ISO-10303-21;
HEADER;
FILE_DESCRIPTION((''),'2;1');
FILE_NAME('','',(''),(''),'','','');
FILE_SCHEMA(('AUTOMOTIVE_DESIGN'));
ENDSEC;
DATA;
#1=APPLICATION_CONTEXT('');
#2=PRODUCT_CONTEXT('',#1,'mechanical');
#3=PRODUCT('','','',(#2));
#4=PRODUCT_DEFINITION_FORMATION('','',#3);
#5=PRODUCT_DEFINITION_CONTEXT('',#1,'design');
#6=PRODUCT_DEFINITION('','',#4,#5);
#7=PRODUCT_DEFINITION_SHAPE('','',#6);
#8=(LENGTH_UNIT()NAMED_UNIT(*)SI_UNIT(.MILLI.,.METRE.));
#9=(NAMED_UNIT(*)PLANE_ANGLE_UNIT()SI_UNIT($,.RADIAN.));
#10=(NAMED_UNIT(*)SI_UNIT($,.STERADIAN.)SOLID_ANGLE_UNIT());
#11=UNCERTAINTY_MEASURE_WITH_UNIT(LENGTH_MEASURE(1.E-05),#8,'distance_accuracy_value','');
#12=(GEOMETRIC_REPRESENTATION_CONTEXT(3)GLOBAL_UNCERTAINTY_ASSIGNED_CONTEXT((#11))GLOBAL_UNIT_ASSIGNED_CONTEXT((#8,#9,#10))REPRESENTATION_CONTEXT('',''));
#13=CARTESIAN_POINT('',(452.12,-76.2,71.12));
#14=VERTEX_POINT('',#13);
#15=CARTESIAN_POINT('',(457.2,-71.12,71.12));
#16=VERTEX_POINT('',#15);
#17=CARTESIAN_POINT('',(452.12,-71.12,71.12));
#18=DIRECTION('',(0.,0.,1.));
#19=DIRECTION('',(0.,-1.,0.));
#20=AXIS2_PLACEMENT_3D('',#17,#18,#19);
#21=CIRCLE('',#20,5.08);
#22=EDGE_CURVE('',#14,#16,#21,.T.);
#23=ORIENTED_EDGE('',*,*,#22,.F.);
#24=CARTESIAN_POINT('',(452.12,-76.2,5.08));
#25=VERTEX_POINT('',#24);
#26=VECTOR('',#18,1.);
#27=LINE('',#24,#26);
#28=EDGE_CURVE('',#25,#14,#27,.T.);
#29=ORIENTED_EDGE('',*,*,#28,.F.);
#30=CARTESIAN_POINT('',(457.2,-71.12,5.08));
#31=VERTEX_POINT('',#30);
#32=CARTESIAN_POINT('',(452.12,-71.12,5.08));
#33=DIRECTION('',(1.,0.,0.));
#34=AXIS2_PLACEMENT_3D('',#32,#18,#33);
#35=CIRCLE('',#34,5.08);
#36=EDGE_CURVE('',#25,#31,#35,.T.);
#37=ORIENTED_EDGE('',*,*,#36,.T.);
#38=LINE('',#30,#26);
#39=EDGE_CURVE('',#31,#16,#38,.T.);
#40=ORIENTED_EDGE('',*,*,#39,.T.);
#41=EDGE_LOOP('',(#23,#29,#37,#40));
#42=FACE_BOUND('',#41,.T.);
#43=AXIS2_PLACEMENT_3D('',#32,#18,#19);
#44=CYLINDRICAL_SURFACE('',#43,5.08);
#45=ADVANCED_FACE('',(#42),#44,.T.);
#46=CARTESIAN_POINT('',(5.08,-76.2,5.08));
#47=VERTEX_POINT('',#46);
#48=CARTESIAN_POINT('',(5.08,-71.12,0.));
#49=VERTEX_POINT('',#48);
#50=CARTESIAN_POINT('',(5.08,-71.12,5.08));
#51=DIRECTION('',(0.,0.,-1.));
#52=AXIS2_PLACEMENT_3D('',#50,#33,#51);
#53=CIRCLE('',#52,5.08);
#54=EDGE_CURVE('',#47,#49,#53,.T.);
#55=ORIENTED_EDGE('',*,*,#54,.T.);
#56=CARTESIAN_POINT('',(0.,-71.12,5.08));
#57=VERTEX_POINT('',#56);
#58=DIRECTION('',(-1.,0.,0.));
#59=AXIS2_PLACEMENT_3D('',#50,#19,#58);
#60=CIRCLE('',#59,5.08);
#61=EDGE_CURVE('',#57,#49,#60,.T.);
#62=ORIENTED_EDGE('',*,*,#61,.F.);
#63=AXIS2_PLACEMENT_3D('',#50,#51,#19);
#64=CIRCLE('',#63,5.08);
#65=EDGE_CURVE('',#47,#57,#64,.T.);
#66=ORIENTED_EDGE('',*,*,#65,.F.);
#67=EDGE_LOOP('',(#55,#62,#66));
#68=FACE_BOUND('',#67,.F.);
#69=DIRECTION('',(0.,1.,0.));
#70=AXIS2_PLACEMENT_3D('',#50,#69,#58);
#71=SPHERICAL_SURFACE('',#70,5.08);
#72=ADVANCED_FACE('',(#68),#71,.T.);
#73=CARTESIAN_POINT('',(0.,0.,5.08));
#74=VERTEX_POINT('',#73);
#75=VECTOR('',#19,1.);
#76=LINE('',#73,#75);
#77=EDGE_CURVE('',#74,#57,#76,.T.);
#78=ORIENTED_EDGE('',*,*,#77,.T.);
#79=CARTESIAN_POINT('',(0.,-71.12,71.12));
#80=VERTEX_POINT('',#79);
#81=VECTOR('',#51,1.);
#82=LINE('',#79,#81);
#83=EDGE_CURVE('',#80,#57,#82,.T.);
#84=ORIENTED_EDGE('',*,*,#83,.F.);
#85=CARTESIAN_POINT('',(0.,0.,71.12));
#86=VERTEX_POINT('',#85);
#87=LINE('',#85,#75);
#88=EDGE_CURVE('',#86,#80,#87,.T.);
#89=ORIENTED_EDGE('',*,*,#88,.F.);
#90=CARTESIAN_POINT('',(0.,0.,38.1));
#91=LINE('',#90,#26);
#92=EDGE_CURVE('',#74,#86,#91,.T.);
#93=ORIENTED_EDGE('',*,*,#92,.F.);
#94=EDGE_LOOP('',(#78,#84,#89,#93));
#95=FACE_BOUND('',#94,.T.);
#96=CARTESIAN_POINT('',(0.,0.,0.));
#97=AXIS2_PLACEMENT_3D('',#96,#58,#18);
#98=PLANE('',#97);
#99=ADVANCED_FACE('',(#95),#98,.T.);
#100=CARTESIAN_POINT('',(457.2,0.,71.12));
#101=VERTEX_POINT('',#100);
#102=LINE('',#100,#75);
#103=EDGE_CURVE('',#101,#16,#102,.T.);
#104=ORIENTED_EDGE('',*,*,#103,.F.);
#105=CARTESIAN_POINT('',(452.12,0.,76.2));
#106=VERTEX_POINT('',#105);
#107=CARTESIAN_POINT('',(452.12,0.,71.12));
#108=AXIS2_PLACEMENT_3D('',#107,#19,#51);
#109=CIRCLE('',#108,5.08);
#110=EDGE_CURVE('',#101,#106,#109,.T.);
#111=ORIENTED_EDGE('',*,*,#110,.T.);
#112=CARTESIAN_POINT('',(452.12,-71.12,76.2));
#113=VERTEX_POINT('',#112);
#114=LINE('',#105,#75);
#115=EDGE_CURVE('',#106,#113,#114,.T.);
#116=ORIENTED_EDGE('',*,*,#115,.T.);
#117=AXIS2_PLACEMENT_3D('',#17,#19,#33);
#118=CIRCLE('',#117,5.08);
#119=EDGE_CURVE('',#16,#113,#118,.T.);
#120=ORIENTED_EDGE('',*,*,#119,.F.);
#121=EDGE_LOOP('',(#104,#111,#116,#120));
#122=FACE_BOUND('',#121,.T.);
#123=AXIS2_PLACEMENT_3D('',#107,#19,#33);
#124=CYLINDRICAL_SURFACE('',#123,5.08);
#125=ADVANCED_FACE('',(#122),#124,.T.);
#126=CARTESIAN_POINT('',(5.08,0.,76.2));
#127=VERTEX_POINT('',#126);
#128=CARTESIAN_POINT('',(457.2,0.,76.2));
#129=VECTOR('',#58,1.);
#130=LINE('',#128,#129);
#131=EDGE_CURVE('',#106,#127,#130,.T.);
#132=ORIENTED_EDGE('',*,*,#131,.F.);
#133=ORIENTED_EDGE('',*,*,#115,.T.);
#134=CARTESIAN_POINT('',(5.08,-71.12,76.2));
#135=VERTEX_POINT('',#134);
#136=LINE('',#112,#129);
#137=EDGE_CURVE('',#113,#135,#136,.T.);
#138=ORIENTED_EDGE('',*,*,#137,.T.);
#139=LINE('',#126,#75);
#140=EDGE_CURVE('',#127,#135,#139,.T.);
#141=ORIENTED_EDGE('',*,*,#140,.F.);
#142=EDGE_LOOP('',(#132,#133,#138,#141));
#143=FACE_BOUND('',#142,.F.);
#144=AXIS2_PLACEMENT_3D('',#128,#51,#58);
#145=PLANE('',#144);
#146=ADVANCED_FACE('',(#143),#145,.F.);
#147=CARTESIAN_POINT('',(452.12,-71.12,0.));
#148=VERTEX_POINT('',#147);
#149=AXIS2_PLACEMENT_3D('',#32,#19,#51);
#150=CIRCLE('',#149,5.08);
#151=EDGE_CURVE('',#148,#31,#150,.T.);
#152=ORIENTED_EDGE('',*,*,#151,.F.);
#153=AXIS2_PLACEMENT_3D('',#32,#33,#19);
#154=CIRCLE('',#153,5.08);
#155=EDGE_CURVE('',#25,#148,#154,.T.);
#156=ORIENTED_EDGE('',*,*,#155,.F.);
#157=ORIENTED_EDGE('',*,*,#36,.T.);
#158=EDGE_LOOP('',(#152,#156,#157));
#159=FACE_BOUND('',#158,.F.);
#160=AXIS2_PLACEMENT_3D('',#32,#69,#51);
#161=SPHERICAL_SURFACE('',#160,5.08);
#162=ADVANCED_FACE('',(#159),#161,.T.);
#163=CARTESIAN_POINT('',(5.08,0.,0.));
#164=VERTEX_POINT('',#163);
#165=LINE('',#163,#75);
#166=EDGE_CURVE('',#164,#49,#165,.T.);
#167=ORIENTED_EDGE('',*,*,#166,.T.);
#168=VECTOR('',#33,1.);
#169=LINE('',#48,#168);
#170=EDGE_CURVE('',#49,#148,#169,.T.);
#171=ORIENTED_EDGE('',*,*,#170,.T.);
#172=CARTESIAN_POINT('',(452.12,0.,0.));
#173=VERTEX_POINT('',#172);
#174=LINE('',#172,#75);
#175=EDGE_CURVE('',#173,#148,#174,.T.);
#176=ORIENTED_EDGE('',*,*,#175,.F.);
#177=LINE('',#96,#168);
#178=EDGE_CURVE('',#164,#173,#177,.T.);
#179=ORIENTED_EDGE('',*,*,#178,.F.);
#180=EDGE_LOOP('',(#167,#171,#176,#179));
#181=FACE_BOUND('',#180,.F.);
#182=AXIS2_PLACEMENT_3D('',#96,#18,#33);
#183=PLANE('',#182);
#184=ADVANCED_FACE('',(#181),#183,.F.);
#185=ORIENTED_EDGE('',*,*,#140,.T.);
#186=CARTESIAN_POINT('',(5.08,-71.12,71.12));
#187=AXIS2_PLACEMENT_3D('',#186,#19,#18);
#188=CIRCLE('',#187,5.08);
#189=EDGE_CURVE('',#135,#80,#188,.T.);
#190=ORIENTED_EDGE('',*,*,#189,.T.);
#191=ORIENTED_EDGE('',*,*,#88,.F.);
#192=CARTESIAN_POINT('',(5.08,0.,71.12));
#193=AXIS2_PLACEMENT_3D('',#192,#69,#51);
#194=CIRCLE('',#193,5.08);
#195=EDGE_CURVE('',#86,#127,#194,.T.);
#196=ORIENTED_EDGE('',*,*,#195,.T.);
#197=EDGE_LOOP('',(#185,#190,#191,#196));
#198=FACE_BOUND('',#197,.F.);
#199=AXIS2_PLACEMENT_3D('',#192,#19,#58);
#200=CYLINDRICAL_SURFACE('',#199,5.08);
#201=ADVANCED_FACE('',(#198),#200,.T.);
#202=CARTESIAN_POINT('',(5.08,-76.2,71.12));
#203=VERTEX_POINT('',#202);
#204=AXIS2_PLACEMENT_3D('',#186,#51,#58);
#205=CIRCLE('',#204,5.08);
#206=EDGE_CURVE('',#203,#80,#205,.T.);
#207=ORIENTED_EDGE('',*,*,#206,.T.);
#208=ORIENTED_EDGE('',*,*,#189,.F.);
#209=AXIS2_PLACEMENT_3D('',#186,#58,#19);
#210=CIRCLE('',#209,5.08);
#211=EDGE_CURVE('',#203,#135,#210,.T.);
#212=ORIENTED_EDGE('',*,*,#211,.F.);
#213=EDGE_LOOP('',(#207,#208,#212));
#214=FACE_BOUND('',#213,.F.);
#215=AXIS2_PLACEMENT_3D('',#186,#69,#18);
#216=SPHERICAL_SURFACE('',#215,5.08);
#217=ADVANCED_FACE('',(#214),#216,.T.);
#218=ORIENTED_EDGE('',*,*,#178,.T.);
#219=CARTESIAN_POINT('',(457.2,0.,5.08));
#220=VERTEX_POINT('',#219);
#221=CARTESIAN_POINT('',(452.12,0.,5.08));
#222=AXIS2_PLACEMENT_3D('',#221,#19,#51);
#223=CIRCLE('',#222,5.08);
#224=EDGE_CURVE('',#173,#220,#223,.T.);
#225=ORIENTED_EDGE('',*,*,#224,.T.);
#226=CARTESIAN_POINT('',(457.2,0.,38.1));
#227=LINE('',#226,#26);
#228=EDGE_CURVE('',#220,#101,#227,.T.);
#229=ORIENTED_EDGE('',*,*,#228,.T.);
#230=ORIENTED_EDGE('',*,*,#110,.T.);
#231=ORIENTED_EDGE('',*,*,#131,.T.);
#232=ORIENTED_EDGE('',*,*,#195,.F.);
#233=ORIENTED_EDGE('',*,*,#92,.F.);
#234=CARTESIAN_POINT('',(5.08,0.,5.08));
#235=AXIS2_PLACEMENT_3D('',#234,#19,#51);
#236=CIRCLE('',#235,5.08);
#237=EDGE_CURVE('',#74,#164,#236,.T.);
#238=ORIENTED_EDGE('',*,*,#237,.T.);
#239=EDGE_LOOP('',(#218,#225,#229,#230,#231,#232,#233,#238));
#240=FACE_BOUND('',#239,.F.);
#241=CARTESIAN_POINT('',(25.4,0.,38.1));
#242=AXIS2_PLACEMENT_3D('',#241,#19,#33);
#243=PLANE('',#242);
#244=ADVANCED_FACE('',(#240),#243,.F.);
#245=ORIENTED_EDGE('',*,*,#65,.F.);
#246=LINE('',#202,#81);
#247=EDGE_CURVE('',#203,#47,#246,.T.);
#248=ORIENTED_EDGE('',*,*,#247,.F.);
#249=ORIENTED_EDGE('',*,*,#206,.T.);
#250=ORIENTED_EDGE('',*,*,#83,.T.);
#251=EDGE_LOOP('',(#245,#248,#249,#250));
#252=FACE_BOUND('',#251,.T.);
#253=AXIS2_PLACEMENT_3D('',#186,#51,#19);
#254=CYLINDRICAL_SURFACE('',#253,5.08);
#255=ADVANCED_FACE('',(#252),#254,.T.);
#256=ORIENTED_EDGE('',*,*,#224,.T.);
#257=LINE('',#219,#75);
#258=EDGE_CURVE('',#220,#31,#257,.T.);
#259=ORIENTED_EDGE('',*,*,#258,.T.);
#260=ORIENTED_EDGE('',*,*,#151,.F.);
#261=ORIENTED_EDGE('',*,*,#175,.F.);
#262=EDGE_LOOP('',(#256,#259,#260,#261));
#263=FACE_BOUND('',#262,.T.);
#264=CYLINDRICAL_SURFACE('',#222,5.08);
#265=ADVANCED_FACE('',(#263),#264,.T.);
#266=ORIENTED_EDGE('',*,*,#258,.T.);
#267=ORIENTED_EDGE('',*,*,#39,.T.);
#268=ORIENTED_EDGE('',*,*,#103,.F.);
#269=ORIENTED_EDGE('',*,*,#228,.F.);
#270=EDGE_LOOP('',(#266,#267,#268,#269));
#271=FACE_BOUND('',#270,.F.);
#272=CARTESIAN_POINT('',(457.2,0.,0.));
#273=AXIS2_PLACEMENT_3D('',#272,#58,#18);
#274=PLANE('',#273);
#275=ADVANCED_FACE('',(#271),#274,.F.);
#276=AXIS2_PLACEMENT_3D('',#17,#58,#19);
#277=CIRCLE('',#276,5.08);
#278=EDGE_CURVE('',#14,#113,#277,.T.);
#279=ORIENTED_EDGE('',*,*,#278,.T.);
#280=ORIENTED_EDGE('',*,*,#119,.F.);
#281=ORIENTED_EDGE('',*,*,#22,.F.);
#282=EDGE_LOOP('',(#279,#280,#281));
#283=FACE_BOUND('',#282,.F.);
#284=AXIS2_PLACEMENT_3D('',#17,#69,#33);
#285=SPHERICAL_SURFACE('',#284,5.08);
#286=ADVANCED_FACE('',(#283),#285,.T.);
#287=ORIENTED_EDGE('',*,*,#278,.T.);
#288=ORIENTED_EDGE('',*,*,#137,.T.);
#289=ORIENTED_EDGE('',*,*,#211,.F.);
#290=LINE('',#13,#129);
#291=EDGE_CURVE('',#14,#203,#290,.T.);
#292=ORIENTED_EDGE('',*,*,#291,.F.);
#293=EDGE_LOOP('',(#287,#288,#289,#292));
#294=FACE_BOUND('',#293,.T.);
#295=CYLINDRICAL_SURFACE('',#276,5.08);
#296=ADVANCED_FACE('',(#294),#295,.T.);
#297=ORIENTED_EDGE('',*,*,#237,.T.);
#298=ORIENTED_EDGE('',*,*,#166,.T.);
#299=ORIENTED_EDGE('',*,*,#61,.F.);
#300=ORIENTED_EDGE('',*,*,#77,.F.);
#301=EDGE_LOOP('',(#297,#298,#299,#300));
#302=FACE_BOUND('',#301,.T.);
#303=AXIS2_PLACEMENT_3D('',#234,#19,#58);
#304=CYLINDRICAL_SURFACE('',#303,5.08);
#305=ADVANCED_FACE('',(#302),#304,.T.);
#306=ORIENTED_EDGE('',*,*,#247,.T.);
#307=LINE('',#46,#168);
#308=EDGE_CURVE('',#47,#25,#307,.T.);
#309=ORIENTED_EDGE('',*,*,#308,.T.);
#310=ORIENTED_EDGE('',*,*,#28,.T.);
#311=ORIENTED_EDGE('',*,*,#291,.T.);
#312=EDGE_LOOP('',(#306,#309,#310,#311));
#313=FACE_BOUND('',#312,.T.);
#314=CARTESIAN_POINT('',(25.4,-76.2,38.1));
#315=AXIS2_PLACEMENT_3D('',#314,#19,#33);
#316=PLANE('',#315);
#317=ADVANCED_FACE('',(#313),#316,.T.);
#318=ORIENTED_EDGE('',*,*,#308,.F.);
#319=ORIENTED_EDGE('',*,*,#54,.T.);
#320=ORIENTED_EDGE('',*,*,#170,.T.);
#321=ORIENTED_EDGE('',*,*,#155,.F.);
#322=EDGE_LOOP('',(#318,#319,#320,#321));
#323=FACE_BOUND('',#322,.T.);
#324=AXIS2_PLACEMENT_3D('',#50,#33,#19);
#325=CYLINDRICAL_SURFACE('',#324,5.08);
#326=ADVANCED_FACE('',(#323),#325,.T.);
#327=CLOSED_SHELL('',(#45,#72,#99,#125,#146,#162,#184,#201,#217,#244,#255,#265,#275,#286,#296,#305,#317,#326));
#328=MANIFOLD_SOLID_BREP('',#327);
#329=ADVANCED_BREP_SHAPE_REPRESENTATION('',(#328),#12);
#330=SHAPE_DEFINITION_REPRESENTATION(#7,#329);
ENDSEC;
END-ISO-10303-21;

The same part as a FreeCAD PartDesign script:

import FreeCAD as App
import Part
import Sketcher
Q = App.Units.Quantity


def edges_at(feature, points):
    """Names of the edges that pass closest to the given points."""
    edges = feature.Shape.Edges
    near = lambda p: min(range(len(edges)), key=lambda i: edges[i].distToShape(Part.Vertex(*p))[0])
    return sorted({f"Edge{near(p) + 1}" for p in points})


def add_polygon(sketch, points):
    """Adds a closed chain of lines whose ends are joined by coincident constraints."""
    first, n = sketch.GeometryCount, len(points)
    for a, b in zip(points, points[1:] + points[:1]):
        sketch.addGeometry(Part.LineSegment(App.Vector(*a, 0), App.Vector(*b, 0)), False)
    for i in range(n):
        sketch.addConstraint(Sketcher.Constraint("Coincident", first + i, 2, first + (i + 1) % n, 1))

doc = App.newDocument("Part")
params = doc.addObject("Spreadsheet::Sheet", "Params")
for row, (alias, value) in enumerate([
    ("sketch1_width", "18 in"),
    ("sketch1_height", "3 in"),
    ("pad1_length", "3 in"),
    ("fillet_radius", "0.2 in"),
    ("fillet2_radius", "0.2 in"),
], start=1):
    params.set(f"A{row}", alias)
    params.set(f"B{row}", "=" + value)
    params.setAlias(f"B{row}", alias)

body = doc.addObject("PartDesign::Body", "Body")

# Sketch on XZ plane
sketch1 = body.newObject("Sketcher::SketchObject", "Sketch")
sketch1.AttachmentSupport = (doc.getObject("XZ_Plane"), [""])
sketch1.MapMode = "FlatFace"
add_polygon(sketch1, [(0, 76), (0, 0), (457, 0), (457, 76)])  # lines 0-3
sketch1.addConstraint([
    Sketcher.Constraint("Vertical", 0),
    Sketcher.Constraint("Horizontal", 1),
    Sketcher.Constraint("Vertical", 2),
    Sketcher.Constraint("Horizontal", 3),
    Sketcher.Constraint("Coincident", 0, 2, -1, 1),
    Sketcher.Constraint("DistanceX", 1, 1, 1, 2, Q("18 in")),
    Sketcher.Constraint("DistanceY", 0, 2, 0, 1, Q("3 in")),
])
sketch1.setExpression("Constraints[9]", "Params.sketch1_width")
sketch1.setExpression("Constraints[10]", "Params.sketch1_height")
pad1 = body.newObject("PartDesign::Pad", "Pad")
pad1.Profile = sketch1
pad1.setExpression("Length", "Params.pad1_length")
doc.recompute()

fillet = body.newObject("PartDesign::Fillet", "Fillet")
fillet.Base = (pad1, edges_at(pad1, [
    (457.2, -38.1, 0),
    (0, -38.1, 0),
    (457.2, -38.1, 76.2),
    (0, -38.1, 76.2),
]))
fillet.setExpression("Radius", "Params.fillet_radius")
doc.recompute()

fillet2 = body.newObject("PartDesign::Fillet", "Fillet001")
fillet2.Base = (fillet, edges_at(fillet, [(228.6, -76.2, 76.2)]))
fillet2.setExpression("Radius", "Params.fillet2_radius")

doc.recompute()
